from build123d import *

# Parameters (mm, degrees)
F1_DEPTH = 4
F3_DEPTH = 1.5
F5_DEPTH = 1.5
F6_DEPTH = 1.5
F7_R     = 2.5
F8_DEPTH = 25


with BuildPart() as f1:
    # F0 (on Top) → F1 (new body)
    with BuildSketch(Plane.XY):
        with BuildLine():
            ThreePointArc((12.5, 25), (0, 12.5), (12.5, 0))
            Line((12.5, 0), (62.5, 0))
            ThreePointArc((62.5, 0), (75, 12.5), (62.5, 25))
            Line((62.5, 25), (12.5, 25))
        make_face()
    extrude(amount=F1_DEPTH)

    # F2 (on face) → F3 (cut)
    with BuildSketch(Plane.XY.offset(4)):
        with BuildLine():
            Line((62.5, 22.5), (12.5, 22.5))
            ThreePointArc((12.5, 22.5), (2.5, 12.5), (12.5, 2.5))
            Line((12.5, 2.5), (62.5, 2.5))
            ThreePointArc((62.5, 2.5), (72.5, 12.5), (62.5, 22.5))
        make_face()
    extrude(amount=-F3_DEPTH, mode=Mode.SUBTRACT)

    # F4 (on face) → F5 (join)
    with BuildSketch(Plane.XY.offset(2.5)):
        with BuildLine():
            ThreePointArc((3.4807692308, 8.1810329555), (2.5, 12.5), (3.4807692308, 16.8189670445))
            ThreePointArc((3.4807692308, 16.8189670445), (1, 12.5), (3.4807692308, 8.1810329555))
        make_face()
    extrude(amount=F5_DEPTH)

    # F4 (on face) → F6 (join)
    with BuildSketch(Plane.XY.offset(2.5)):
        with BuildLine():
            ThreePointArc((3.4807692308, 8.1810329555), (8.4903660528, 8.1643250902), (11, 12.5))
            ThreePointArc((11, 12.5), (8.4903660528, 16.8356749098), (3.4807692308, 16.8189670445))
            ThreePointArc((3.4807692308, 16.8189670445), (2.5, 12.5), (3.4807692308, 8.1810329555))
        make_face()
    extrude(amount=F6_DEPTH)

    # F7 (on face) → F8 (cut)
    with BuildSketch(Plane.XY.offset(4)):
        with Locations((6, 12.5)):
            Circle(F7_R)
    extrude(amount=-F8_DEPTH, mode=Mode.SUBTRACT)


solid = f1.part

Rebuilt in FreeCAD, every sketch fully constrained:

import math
import FreeCAD as App
import Part
import Sketcher

doc = App.newDocument("Part")
body = doc.addObject("PartDesign::Body", "Body")

# Sketch on XY plane
sketch1 = body.newObject("Sketcher::SketchObject", "Sketch")
sketch1.AttachmentSupport = (doc.getObject("XY_Plane"), [""])
sketch1.MapMode = "FlatFace"
sketch1.addGeometry(Part.ArcOfCircle(Part.Circle(App.Vector(12.5, 12.5, 0), App.Vector(0, 0, 1), 12.5), math.radians(90), math.radians(270)), False)
sketch1.addGeometry(Part.LineSegment(App.Vector(12.5, 0, 0), App.Vector(62.5, 0, 0)), False)
sketch1.addGeometry(Part.ArcOfCircle(Part.Circle(App.Vector(62.5, 12.5, 0), App.Vector(0, 0, 1), 12.5), math.radians(-90), math.radians(90)), False)
sketch1.addGeometry(Part.LineSegment(App.Vector(62.5, 25, 0), App.Vector(12.5, 25, 0)), False)
sketch1.addConstraint(Sketcher.Constraint("Tangent", 0, 2, 1, 1))
sketch1.addConstraint(Sketcher.Constraint("Tangent", 1, 2, 2, 1))
sketch1.addConstraint(Sketcher.Constraint("Tangent", 2, 2, 3, 1))
sketch1.addConstraint(Sketcher.Constraint("Tangent", 3, 2, 0, 1))
sketch1.addConstraint(Sketcher.Constraint("Horizontal", 1))
sketch1.addConstraint(Sketcher.Constraint("Horizontal", 3))
sketch1.addConstraint(Sketcher.Constraint("PointOnObject", 0, 2, -1))
sketch1.addConstraint(Sketcher.Constraint("Radius", 0, 12.5))
sketch1.addConstraint(Sketcher.Constraint("DistanceX", 1, 1, 1, 2, 50.0))
sketch1.addConstraint(Sketcher.Constraint("DistanceX", -1, 1, 0, 3, 12.5))
pad1 = body.newObject("PartDesign::Pad", "Pad")
pad1.Profile = sketch1
pad1.Length = 4

# Sketch on XY plane
sketch2 = body.newObject("Sketcher::SketchObject", "Sketch001")
sketch2.AttachmentSupport = (doc.getObject("XY_Plane"), [""])
sketch2.MapMode = "FlatFace"
sketch2.AttachmentOffset = App.Placement(App.Vector(0, 0, 4), App.Rotation())
sketch2.addGeometry(Part.LineSegment(App.Vector(62.5, 22.5, 0), App.Vector(12.5, 22.5, 0)), False)
sketch2.addGeometry(Part.ArcOfCircle(Part.Circle(App.Vector(12.5, 12.5, 0), App.Vector(0, 0, 1), 10), math.radians(90), math.radians(270)), False)
sketch2.addGeometry(Part.LineSegment(App.Vector(12.5, 2.5, 0), App.Vector(62.5, 2.5, 0)), False)
sketch2.addGeometry(Part.ArcOfCircle(Part.Circle(App.Vector(62.5, 12.5, 0), App.Vector(0, 0, 1), 10), math.radians(-90), math.radians(90)), False)
sketch2.addConstraint(Sketcher.Constraint("Tangent", 0, 2, 1, 1))
sketch2.addConstraint(Sketcher.Constraint("Tangent", 1, 2, 2, 1))
sketch2.addConstraint(Sketcher.Constraint("Tangent", 2, 2, 3, 1))
sketch2.addConstraint(Sketcher.Constraint("Tangent", 3, 2, 0, 1))
sketch2.addConstraint(Sketcher.Constraint("Horizontal", 0))
sketch2.addConstraint(Sketcher.Constraint("Horizontal", 2))
sketch2.addConstraint(Sketcher.Constraint("Radius", 1, 10.0))
sketch2.addConstraint(Sketcher.Constraint("DistanceX", 0, 2, 0, 1, 50.0))
sketch2.addConstraint(Sketcher.Constraint("DistanceX", -1, 1, 1, 3, 12.5))
sketch2.addConstraint(Sketcher.Constraint("DistanceY", -1, 1, 1, 3, 12.5))
pocket1 = body.newObject("PartDesign::Pocket", "Pocket")
pocket1.Profile = sketch2
pocket1.Length = 1.5

# Sketch on XY plane
sketch3 = body.newObject("Sketcher::SketchObject", "Sketch002")
sketch3.AttachmentSupport = (doc.getObject("XY_Plane"), [""])
sketch3.MapMode = "FlatFace"
sketch3.AttachmentOffset = App.Placement(App.Vector(0, 0, 2.5), App.Rotation())
sketch3.addGeometry(Part.ArcOfCircle(Part.Circle(App.Vector(12.5, 12.5, 0), App.Vector(0, 0, 1), 10), math.radians(154.41201), math.radians(205.58799)), False)
sketch3.addGeometry(Part.ArcOfCircle(Part.Circle(App.Vector(6, 12.5, 0), App.Vector(0, 0, 1), 5), math.radians(120.254787), math.radians(239.745213)), False)
sketch3.addConstraint(Sketcher.Constraint("Coincident", 0, 1, 1, 1))
sketch3.addConstraint(Sketcher.Constraint("Coincident", 1, 2, 0, 2))
sketch3.addConstraint(Sketcher.Constraint("Horizontal", 0, 3, 1, 3))
sketch3.addConstraint(Sketcher.Constraint("Radius", 0, 10.0))
sketch3.addConstraint(Sketcher.Constraint("Radius", 1, 5.0))
sketch3.addConstraint(Sketcher.Constraint("DistanceX", -1, 1, 1, 3, 6.0))
sketch3.addConstraint(Sketcher.Constraint("DistanceX", -1, 1, 0, 3, 12.5))
sketch3.addConstraint(Sketcher.Constraint("DistanceY", -1, 1, 0, 3, 12.5))
pad2 = body.newObject("PartDesign::Pad", "Pad001")
pad2.Profile = sketch3
pad2.Length = 1.5

# Sketch on XY plane
sketch4 = body.newObject("Sketcher::SketchObject", "Sketch003")
sketch4.AttachmentSupport = (doc.getObject("XY_Plane"), [""])
sketch4.MapMode = "FlatFace"
sketch4.AttachmentOffset = App.Placement(App.Vector(0, 0, 2.5), App.Rotation())
sketch4.addGeometry(Part.ArcOfCircle(Part.Circle(App.Vector(6, 12.5, 0), App.Vector(0, 0, 1), 5), math.radians(-120.254787), math.radians(0)), False)
sketch4.addGeometry(Part.ArcOfCircle(Part.Circle(App.Vector(6, 12.5, 0), App.Vector(0, 0, 1), 5), math.radians(0), math.radians(120.254787)), False)
sketch4.addGeometry(Part.ArcOfCircle(Part.Circle(App.Vector(12.5, 12.5, 0), App.Vector(0, 0, 1), 10), math.radians(154.41201), math.radians(205.58799)), False)
sketch4.addConstraint(Sketcher.Constraint("Tangent", 0, 2, 1, 1))
sketch4.addConstraint(Sketcher.Constraint("Coincident", 1, 2, 2, 1))
sketch4.addConstraint(Sketcher.Constraint("Coincident", 2, 2, 0, 1))
sketch4.addConstraint(Sketcher.Constraint("Equal", 0, 1))
sketch4.addConstraint(Sketcher.Constraint("Horizontal", 1, 3, 2, 3))
sketch4.addConstraint(Sketcher.Constraint("Horizontal", 2, 3, 0, 2))
sketch4.addConstraint(Sketcher.Constraint("Radius", 0, 5.0))
sketch4.addConstraint(Sketcher.Constraint("Radius", 2, 10.0))
sketch4.addConstraint(Sketcher.Constraint("DistanceX", -1, 1, 0, 3, 6.0))
sketch4.addConstraint(Sketcher.Constraint("DistanceY", -1, 1, 0, 3, 12.5))
sketch4.addConstraint(Sketcher.Constraint("DistanceX", -1, 1, 2, 3, 12.5))
pad3 = body.newObject("PartDesign::Pad", "Pad002")
pad3.Profile = sketch4
pad3.Length = 1.5

# Sketch on XY plane
sketch5 = body.newObject("Sketcher::SketchObject", "Sketch004")
sketch5.AttachmentSupport = (doc.getObject("XY_Plane"), [""])
sketch5.MapMode = "FlatFace"
sketch5.AttachmentOffset = App.Placement(App.Vector(0, 0, 4), App.Rotation())
sketch5.addGeometry(Part.Circle(App.Vector(6, 12.5, 0), App.Vector(0, 0, 1), 2.5), False)
sketch5.addConstraint(Sketcher.Constraint("Diameter", 0, 5.0))
sketch5.addConstraint(Sketcher.Constraint("DistanceX", -1, 1, 0, 3, 6.0))
sketch5.addConstraint(Sketcher.Constraint("DistanceY", -1, 1, 0, 3, 12.5))
pocket2 = body.newObject("PartDesign::Pocket", "Pocket001")
pocket2.Profile = sketch5
pocket2.Length = 25

doc.recompute()
